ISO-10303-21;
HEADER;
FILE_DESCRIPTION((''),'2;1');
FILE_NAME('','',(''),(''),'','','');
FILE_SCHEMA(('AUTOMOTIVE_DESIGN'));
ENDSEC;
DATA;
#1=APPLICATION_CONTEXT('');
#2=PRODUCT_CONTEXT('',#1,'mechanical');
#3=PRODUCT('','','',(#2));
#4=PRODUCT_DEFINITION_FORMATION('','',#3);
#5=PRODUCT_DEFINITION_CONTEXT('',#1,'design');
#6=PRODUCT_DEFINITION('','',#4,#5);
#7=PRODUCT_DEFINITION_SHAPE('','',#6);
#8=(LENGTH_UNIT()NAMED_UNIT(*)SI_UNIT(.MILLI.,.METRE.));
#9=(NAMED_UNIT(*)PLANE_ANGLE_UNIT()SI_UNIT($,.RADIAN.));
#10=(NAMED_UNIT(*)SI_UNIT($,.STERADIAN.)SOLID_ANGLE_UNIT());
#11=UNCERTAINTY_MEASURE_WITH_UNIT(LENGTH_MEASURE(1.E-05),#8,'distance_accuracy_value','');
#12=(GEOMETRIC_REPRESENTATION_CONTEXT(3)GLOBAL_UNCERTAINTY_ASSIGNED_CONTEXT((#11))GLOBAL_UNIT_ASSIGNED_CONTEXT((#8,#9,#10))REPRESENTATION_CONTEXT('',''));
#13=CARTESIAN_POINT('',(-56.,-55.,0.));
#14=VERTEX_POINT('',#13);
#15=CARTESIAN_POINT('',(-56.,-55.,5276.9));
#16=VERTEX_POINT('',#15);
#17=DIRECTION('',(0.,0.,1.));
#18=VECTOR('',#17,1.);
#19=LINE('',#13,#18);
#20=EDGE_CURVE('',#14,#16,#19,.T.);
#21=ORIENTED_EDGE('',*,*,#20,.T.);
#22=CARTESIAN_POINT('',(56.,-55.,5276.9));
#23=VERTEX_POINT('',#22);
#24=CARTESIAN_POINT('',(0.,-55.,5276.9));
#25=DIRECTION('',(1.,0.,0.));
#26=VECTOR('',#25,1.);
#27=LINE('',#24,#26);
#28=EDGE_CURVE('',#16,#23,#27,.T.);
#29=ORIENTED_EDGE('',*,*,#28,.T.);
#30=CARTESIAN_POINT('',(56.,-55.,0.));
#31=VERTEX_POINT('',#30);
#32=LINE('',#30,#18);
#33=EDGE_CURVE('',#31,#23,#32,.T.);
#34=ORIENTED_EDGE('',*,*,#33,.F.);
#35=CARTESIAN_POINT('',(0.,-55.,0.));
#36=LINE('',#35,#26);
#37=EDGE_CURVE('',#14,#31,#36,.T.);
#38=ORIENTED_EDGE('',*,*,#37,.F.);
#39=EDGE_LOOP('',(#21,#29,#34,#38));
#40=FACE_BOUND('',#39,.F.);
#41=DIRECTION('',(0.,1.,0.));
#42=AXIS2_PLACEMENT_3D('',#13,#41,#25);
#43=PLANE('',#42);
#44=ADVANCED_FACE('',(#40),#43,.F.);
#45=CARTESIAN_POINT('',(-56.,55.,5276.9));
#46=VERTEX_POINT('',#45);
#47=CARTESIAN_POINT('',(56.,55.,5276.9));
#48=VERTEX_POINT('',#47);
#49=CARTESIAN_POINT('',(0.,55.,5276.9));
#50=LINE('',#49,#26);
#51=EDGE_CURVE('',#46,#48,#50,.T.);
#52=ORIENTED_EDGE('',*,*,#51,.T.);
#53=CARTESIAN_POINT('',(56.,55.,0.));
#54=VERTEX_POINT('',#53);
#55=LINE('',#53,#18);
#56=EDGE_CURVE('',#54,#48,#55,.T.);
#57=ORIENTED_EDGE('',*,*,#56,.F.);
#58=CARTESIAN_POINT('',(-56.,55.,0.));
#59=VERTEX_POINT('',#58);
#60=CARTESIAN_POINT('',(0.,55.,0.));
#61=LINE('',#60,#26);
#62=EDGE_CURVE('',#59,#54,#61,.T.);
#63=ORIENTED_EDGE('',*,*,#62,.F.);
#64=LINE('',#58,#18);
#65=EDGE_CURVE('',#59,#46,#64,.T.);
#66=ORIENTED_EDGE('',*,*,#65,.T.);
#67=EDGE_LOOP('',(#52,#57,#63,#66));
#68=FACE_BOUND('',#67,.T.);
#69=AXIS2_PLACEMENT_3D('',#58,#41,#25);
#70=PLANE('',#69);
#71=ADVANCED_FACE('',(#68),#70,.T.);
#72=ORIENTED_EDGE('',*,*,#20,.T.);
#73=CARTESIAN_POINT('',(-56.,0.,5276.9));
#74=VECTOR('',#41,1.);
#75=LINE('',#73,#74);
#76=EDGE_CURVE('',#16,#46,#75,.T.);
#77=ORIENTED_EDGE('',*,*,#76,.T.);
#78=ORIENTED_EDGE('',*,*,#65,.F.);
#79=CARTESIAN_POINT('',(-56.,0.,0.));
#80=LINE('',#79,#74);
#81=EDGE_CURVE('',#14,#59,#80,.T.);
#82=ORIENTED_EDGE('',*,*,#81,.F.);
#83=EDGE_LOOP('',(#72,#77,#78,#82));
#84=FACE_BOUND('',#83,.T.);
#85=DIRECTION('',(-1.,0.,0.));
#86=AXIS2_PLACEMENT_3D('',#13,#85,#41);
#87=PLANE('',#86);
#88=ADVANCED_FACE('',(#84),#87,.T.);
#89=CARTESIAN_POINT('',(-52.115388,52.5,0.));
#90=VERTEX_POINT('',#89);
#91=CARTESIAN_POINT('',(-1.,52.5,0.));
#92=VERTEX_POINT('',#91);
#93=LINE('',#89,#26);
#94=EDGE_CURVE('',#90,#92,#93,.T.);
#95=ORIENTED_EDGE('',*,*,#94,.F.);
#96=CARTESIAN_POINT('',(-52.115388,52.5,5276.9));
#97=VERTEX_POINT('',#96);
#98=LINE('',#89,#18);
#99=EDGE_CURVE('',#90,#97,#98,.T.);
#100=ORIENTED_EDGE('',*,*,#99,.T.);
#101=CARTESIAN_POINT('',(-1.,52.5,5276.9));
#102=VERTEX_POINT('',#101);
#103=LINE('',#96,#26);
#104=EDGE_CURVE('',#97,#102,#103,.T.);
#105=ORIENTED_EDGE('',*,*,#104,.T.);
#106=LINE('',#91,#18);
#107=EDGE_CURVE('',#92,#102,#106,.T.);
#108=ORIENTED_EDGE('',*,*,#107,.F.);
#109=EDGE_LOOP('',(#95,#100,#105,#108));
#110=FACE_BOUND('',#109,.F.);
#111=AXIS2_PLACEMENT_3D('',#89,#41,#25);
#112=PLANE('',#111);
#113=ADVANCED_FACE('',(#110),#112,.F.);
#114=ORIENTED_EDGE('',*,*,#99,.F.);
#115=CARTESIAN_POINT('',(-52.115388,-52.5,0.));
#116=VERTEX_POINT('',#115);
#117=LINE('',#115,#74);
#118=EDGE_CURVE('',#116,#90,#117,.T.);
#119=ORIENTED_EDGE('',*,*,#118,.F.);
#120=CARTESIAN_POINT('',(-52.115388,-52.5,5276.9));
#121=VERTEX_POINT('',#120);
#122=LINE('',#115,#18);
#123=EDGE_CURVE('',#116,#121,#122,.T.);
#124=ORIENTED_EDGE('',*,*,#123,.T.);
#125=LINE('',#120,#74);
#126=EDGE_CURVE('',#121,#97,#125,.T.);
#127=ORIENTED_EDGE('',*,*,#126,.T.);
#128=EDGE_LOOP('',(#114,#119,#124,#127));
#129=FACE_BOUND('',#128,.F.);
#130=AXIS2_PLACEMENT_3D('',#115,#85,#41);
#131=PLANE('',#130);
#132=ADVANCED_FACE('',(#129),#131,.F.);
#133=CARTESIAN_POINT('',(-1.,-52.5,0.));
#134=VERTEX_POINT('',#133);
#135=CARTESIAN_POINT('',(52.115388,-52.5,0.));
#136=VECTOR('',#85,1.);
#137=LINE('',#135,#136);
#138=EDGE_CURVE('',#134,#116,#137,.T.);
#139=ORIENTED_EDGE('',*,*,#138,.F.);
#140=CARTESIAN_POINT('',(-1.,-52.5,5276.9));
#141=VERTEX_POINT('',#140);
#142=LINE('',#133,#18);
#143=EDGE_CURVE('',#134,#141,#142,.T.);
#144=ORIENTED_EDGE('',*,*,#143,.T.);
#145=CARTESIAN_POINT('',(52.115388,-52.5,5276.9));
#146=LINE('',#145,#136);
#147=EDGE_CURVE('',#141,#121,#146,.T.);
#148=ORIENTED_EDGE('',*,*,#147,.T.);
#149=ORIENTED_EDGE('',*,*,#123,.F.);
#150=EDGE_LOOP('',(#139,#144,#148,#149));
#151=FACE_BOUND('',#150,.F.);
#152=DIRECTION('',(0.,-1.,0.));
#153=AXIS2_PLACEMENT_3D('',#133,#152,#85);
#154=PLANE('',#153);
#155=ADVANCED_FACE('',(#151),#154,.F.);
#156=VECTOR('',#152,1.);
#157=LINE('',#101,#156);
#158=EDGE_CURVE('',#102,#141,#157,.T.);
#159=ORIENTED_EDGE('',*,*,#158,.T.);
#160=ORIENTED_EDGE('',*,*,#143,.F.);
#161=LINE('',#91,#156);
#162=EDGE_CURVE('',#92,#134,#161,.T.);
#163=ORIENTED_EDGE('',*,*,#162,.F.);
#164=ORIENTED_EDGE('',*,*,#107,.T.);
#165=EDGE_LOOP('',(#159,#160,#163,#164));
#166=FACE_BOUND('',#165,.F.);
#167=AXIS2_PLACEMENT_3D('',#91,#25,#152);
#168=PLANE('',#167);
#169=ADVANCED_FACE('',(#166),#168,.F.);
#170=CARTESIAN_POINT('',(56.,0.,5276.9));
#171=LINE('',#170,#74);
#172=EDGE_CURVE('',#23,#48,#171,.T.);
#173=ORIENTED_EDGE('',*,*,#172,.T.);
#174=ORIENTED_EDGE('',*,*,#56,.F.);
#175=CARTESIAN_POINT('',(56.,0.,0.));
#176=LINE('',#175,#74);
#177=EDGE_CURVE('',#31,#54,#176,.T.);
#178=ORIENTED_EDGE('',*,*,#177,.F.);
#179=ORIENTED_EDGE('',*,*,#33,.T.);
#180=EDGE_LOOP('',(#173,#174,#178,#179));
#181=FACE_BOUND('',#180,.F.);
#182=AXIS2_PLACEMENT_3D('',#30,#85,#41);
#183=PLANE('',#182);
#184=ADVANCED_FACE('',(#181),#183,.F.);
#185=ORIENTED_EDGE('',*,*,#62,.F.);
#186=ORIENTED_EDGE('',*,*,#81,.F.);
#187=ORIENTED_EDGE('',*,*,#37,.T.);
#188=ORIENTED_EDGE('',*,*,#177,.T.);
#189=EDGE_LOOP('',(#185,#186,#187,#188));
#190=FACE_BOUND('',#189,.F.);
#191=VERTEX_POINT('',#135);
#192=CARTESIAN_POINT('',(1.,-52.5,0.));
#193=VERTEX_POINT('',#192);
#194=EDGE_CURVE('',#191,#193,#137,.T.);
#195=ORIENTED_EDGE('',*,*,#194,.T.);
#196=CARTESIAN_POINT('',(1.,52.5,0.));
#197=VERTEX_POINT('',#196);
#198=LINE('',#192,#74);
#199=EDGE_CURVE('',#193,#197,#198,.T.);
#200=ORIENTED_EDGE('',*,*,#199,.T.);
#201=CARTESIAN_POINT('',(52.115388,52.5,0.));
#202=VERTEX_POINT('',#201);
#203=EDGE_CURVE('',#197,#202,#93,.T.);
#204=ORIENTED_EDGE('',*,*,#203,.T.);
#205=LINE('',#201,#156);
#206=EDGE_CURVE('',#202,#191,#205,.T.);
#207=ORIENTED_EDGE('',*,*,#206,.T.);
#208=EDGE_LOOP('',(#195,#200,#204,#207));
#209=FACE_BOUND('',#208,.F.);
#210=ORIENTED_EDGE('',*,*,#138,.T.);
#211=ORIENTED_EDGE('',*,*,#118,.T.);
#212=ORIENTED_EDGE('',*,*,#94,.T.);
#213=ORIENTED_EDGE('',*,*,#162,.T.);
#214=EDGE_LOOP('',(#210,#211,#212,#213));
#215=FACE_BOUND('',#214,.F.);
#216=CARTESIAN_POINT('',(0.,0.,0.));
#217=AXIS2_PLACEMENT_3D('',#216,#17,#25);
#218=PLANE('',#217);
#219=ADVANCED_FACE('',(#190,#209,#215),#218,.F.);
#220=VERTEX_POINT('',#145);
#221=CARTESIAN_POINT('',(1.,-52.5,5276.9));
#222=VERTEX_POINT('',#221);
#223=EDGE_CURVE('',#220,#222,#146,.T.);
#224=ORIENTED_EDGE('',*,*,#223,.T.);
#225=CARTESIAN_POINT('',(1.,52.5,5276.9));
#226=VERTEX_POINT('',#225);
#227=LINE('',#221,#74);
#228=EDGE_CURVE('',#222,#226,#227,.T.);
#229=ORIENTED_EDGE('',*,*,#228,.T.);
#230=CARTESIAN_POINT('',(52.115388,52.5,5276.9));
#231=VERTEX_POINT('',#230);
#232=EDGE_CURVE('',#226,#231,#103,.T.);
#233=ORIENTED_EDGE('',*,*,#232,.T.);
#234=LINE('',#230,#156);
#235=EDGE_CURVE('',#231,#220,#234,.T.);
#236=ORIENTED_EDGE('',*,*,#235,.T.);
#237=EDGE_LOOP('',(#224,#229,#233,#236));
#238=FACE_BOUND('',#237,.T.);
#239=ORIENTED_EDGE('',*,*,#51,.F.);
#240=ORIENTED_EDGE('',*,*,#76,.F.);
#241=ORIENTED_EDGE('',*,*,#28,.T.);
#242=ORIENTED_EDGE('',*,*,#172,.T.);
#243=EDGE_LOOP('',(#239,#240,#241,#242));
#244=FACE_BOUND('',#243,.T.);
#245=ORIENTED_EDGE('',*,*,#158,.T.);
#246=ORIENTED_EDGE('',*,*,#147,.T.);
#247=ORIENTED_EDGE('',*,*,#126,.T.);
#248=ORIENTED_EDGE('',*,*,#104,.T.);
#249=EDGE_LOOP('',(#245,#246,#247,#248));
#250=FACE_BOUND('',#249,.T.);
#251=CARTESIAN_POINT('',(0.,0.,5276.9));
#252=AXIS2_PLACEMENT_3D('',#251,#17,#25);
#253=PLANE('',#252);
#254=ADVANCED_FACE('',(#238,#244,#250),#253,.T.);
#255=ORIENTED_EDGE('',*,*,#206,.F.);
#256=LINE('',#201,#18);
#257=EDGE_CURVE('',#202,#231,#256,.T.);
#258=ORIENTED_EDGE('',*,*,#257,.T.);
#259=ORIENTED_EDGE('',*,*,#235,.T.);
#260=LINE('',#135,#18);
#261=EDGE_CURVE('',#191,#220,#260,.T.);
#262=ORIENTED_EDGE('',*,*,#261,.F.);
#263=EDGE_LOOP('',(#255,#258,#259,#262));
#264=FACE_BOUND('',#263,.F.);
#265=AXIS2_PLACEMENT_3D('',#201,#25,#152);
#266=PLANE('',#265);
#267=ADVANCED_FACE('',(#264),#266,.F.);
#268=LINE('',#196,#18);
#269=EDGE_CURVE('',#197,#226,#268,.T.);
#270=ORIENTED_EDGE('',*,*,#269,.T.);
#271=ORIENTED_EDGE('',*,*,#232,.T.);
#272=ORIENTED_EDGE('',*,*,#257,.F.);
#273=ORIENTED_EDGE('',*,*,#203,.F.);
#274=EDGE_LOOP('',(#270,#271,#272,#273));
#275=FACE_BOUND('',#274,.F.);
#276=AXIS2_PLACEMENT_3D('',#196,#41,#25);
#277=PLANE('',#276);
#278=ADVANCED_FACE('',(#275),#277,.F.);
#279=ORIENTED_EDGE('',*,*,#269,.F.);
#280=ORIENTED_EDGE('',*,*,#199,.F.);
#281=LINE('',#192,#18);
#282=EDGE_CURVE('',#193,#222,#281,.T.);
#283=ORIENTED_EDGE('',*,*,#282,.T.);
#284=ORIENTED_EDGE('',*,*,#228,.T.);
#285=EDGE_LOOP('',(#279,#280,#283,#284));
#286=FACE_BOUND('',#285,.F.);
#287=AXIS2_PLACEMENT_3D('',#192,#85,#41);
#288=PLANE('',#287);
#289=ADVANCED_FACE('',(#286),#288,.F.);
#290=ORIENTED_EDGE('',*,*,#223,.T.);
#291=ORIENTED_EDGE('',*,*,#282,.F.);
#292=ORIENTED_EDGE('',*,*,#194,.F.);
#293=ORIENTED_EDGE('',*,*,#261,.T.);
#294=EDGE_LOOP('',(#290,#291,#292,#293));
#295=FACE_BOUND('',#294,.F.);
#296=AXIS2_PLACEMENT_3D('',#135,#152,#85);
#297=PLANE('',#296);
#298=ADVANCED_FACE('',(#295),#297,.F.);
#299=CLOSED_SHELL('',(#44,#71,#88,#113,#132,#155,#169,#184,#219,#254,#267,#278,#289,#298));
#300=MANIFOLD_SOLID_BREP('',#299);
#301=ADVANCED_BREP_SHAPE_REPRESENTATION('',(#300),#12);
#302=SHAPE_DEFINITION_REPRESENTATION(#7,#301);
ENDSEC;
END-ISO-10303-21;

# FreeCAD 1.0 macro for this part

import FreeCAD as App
import Part
import Sketcher


def add_polygon(sketch, points):
    """Adds a closed chain of lines whose ends are joined by coincident constraints."""
    first, n = sketch.GeometryCount, len(points)
    for a, b in zip(points, points[1:] + points[:1]):
        sketch.addGeometry(Part.LineSegment(App.Vector(*a, 0), App.Vector(*b, 0)), False)
    for i in range(n):
        sketch.addConstraint(Sketcher.Constraint("Coincident", first + i, 2, first + (i + 1) % n, 1))

doc = App.newDocument("Part")
body = doc.addObject("PartDesign::Body", "Body")

# Sketch on XY plane
sketch1 = body.newObject("Sketcher::SketchObject", "Sketch")
sketch1.AttachmentSupport = (doc.getObject("XY_Plane"), [""])
sketch1.MapMode = "FlatFace"
add_polygon(sketch1, [(-56, 55), (-56, -55), (56, -55), (56, 55)])  # lines 0-3
add_polygon(sketch1, [(52, -52), (1, -52), (1, 52), (52, 52)])  # lines 4-7
add_polygon(sketch1, [(-1, -52), (-52, -52), (-52, 52), (-1, 52)])  # lines 8-11
sketch1.addConstraint(Sketcher.Constraint("Vertical", 0))
sketch1.addConstraint(Sketcher.Constraint("Horizontal", 1))
sketch1.addConstraint(Sketcher.Constraint("Vertical", 2))
sketch1.addConstraint(Sketcher.Constraint("Horizontal", 3))
sketch1.addConstraint(Sketcher.Constraint("Horizontal", 4))
sketch1.addConstraint(Sketcher.Constraint("Vertical", 5))
sketch1.addConstraint(Sketcher.Constraint("Horizontal", 6))
sketch1.addConstraint(Sketcher.Constraint("Vertical", 7))
sketch1.addConstraint(Sketcher.Constraint("Horizontal", 8))
sketch1.addConstraint(Sketcher.Constraint("Vertical", 9))
sketch1.addConstraint(Sketcher.Constraint("Horizontal", 10))
sketch1.addConstraint(Sketcher.Constraint("Vertical", 11))
sketch1.addConstraint(Sketcher.Constraint("Symmetric", 0, 2, 2, 2, -1, 1))
sketch1.addConstraint(Sketcher.Constraint("Symmetric", 6, 2, 8, 2, -1, 1))
sketch1.addConstraint(Sketcher.Constraint("Symmetric", 4, 2, 10, 2, -1, 1))
sketch1.addConstraint(Sketcher.Constraint("Horizontal", 7, 2, 8, 2))
sketch1.addConstraint(Sketcher.Constraint("DistanceX", 1, 1, 1, 2, 112.0))
sketch1.addConstraint(Sketcher.Constraint("DistanceY", 0, 2, 0, 1, 110.0))
sketch1.addConstraint(Sketcher.Constraint("DistanceY", 5, 1, 5, 2, 105.0))
sketch1.addConstraint(Sketcher.Constraint("DistanceX", -1, 1, 4, 2, 1.0))
sketch1.addConstraint(Sketcher.Constraint("DistanceX", 4, 2, 4, 1, 51.115388))
pad1 = body.newObject("PartDesign::Pad", "Pad")
pad1.Profile = sketch1
pad1.Length = 5276.9

doc.recompute()
